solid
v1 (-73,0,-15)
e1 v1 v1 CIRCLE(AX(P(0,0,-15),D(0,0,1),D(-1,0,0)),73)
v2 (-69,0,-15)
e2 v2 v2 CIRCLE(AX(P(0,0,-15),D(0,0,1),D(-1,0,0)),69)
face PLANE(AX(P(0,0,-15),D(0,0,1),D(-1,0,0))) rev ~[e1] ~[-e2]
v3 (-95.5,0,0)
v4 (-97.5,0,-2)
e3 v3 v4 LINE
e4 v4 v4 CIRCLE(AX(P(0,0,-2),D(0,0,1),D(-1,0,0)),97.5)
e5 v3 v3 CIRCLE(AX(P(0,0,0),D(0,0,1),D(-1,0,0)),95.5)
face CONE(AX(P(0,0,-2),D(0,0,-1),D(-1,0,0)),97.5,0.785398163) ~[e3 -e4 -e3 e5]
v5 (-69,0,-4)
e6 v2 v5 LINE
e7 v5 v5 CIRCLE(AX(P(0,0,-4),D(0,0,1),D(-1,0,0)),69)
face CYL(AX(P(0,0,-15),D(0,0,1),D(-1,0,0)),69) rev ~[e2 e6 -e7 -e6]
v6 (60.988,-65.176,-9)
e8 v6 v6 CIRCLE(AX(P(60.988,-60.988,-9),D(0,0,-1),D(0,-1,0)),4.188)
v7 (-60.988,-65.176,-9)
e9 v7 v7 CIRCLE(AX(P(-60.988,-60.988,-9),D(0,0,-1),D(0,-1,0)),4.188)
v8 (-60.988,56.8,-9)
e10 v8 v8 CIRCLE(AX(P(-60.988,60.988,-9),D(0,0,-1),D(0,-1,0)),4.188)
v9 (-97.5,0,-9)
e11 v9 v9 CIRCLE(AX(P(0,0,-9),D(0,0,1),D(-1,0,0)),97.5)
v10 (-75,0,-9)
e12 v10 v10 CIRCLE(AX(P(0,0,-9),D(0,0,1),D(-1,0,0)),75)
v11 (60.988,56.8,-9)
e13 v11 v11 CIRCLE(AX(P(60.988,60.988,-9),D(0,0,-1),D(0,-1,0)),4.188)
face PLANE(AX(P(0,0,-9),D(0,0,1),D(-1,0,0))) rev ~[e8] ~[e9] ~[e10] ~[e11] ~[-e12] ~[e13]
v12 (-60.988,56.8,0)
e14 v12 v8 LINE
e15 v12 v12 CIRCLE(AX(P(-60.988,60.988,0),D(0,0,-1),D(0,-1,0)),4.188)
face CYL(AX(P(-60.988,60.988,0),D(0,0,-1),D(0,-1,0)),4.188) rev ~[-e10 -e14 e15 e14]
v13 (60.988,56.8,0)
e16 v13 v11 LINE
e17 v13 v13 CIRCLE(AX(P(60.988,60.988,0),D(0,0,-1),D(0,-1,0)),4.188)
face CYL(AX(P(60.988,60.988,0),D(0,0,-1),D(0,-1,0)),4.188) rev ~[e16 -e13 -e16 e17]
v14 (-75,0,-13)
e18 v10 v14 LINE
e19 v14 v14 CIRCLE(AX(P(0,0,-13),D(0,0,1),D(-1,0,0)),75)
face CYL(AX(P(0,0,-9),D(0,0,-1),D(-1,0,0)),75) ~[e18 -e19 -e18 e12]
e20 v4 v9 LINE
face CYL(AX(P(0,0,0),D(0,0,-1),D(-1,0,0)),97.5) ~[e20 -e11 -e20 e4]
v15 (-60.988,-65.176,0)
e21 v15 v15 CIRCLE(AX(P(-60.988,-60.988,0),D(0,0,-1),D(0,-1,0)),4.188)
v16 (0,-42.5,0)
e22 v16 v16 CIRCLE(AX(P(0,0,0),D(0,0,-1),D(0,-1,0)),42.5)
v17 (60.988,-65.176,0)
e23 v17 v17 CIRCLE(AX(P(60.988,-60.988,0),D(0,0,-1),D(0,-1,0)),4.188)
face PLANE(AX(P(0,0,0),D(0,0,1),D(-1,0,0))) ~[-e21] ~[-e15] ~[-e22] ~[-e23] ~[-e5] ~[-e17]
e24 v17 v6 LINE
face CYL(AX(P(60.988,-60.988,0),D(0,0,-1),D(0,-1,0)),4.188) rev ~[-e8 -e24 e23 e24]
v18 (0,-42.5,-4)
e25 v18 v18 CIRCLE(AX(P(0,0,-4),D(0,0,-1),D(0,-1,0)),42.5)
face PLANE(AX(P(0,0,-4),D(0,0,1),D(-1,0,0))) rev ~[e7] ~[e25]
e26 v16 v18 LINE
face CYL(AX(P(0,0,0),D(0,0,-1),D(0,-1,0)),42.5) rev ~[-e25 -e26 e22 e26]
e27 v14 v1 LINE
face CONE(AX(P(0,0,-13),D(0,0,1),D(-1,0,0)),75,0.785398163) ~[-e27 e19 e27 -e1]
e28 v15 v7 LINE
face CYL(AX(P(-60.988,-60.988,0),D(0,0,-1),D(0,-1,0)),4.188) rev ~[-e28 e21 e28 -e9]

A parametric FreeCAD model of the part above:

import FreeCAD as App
import Part
import Sketcher

V = App.Vector


def edges_at(feature, points):
    """Names of the edges that pass closest to the given points."""
    edges = feature.Shape.Edges
    near = lambda p: min(range(len(edges)), key=lambda i: edges[i].distToShape(Part.Vertex(*p))[0])
    return sorted({f"Edge{near(p) + 1}" for p in points})

doc = App.newDocument("Part")
body = doc.addObject("PartDesign::Body", "Body")

# Sketch on XZ plane
sketch1 = doc.addObject("Sketcher::SketchObject", "Sketch")
body.addObject(sketch1)
sketch1.AttachmentSupport = (doc.XZ_Plane, [""])
sketch1.MapMode = "FlatFace"
sketch1.addGeometry([
    Part.LineSegment(V(-97.5, 0, 0), V(0, 0, 0)),  # 0
    Part.LineSegment(V(0, 0, 0), V(0, -4, 0)),  # 1
    Part.LineSegment(V(0, -4, 0), V(-69, -4, 0)),  # 2
    Part.LineSegment(V(-69, -4, 0), V(-69, -15, 0)),  # 3
    Part.LineSegment(V(-69, -15, 0), V(-75, -15, 0)),  # 4
    Part.LineSegment(V(-75, -15, 0), V(-75, -9, 0)),  # 5
    Part.LineSegment(V(-75, -9, 0), V(-97.5, -9, 0)),  # 6
    Part.LineSegment(V(-97.5, -9, 0), V(-97.5, 0, 0)),  # 7
], False)
sketch1.addConstraint([
    Sketcher.Constraint("Coincident", 0, 2, 1, 1),
    Sketcher.Constraint("Coincident", 1, 2, 2, 1),
    Sketcher.Constraint("Coincident", 2, 2, 3, 1),
    Sketcher.Constraint("Coincident", 3, 2, 4, 1),
    Sketcher.Constraint("Coincident", 4, 2, 5, 1),
    Sketcher.Constraint("Coincident", 5, 2, 6, 1),
    Sketcher.Constraint("Coincident", 6, 2, 7, 1),
    Sketcher.Constraint("Coincident", 7, 2, 0, 1),
    Sketcher.Constraint("Horizontal", 0),
    Sketcher.Constraint("Vertical", 1),
    Sketcher.Constraint("Horizontal", 2),
    Sketcher.Constraint("Vertical", 3),
    Sketcher.Constraint("Horizontal", 4),
    Sketcher.Constraint("Vertical", 5),
    Sketcher.Constraint("Horizontal", 6),
    Sketcher.Constraint("Vertical", 7),
    Sketcher.Constraint("Coincident", 0, 2, -1, 1),
    Sketcher.Constraint("Equal", 4, 5),
    Sketcher.Constraint("DistanceY", 1, 2, 1, 1, 4.0),
    Sketcher.Constraint("DistanceY", 7, 1, 7, 2, 9.0),
    Sketcher.Constraint("DistanceY", 3, 2, -1, 1, 15.0),
    Sketcher.Constraint("DistanceX", 2, 2, 2, 1, 69.0),
    Sketcher.Constraint("DistanceX", 0, 1, 0, 2, 97.5),
])
revolution = doc.addObject("PartDesign::Revolution", "Revolution")
body.addObject(revolution)
revolution.Profile = sketch1
revolution.ReferenceAxis = (sketch1, ["V_Axis"])
revolution.Angle = 360

# Sketch on XY plane
sketch2 = doc.addObject("Sketcher::SketchObject", "Sketch001")
body.addObject(sketch2)
sketch2.AttachmentSupport = (doc.XY_Plane, [""])
sketch2.MapMode = "FlatFace"
sketch2.addGeometry([
    Part.Circle(V(-60.988, -60.988, 0), V(0, 0, 1), 4.188),
    Part.Circle(V(60.988, -60.988, 0), V(0, 0, 1), 4.188),
    Part.Circle(V(60.988, 60.988, 0), V(0, 0, 1), 4.188),
    Part.Circle(V(-60.988, 60.988, 0), V(0, 0, 1), 4.188),
], False)
sketch2.addConstraint([
    Sketcher.Constraint("Equal", 0, 1),
    Sketcher.Constraint("Equal", 1, 2),
    Sketcher.Constraint("Equal", 2, 3),
    Sketcher.Constraint("Symmetric", 0, 3, 2, 3, -1, 1),
    Sketcher.Constraint("Symmetric", 1, 3, 3, 3, -1, 1),
    Sketcher.Constraint("Symmetric", 0, 3, 1, 3, -2),
    Sketcher.Constraint("Diameter", 0, 8.376),
    Sketcher.Constraint("DistanceX", 0, 3, -1, 1, 60.988),
    Sketcher.Constraint("DistanceY", 0, 3, -1, 1, 60.988),
])
doc.recompute()
hole = doc.addObject("PartDesign::Hole", "Hole")
body.addObject(hole)
hole.Profile = sketch2
hole.ThreadType = "None"
hole.Diameter = 8.376
hole.DepthType = "ThroughAll"
doc.recompute()

chamfer = doc.addObject("PartDesign::Chamfer", "Chamfer")
body.addObject(chamfer)
chamfer.Base = (hole, edges_at(hole, [(75, 0, -15), (97.5, 0, 0)]))
chamfer.Size = 2

# Sketch on XY plane
sketch3 = doc.addObject("Sketcher::SketchObject", "Sketch002")
body.addObject(sketch3)
sketch3.AttachmentSupport = (doc.XY_Plane, [""])
sketch3.MapMode = "FlatFace"
sketch3.addGeometry(Part.Circle(V(0, 0, 0), V(0, 0, 1), 42.5), False)
sketch3.addConstraint([
    Sketcher.Constraint("Coincident", 0, 3, -1, 1),
    Sketcher.Constraint("Diameter", 0, 85.0),
])
doc.recompute()
hole2 = doc.addObject("PartDesign::Hole", "Hole001")
body.addObject(hole2)
hole2.Profile = sketch3
hole2.ThreadType = "None"
hole2.Diameter = 85
hole2.DepthType = "ThroughAll"

doc.recompute()
